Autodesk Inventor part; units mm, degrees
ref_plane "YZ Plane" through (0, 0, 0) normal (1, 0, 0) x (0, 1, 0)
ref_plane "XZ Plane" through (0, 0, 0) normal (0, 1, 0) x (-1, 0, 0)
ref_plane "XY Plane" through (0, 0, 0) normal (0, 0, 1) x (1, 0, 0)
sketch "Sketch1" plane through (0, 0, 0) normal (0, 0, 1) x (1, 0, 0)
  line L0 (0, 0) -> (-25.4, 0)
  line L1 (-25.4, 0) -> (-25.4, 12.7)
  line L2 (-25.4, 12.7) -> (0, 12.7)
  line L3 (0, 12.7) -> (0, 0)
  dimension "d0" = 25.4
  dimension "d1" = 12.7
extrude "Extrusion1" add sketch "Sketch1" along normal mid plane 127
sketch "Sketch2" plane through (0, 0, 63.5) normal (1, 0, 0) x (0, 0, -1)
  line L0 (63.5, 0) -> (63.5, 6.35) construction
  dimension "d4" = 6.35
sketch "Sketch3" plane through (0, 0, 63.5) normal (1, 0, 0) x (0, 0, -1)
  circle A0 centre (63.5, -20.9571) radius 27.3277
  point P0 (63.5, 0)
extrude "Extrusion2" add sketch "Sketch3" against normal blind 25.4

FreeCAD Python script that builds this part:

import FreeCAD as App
import Part
import Sketcher

V = App.Vector
Q = App.Units.Quantity

doc = App.newDocument("Part")
body = doc.addObject("PartDesign::Body", "Body")

# Sketch on XY plane
sketch1 = body.newObject("Sketcher::SketchObject", "Sketch")
sketch1.AttachmentSupport = (doc.getObject("XY_Plane"), [""])
sketch1.MapMode = "FlatFace"
sketch1.addGeometry(Part.LineSegment(V(-25, 0, 0), V(0, 0, 0)), False)
sketch1.addGeometry(Part.LineSegment(V(0, 0, 0), V(0, 13, 0)), False)
sketch1.addGeometry(Part.LineSegment(V(0, 13, 0), V(-25, 13, 0)), False)
sketch1.addGeometry(Part.LineSegment(V(-25, 13, 0), V(-25, 0, 0)), False)
sketch1.addConstraint(Sketcher.Constraint("Coincident", 0, 2, 1, 1))
sketch1.addConstraint(Sketcher.Constraint("Coincident", 1, 2, 2, 1))
sketch1.addConstraint(Sketcher.Constraint("Coincident", 2, 2, 3, 1))
sketch1.addConstraint(Sketcher.Constraint("Coincident", 3, 2, 0, 1))
sketch1.addConstraint(Sketcher.Constraint("Horizontal", 0))
sketch1.addConstraint(Sketcher.Constraint("Vertical", 1))
sketch1.addConstraint(Sketcher.Constraint("Horizontal", 2))
sketch1.addConstraint(Sketcher.Constraint("Vertical", 3))
sketch1.addConstraint(Sketcher.Constraint("Coincident", 0, 2, -1, 1))
sketch1.addConstraint(Sketcher.Constraint("DistanceX", 0, 1, 0, 2, Q("1 in")))
sketch1.addConstraint(Sketcher.Constraint("DistanceY", 1, 1, 1, 2, Q("0.5 in")))
pad1 = body.newObject("PartDesign::Pad", "Pad")
pad1.Profile = sketch1
pad1.Length = Q("5 in")
pad1.Midplane = True

# Sketch on YZ plane
sketch2 = body.newObject("Sketcher::SketchObject", "Sketch001")
sketch2.AttachmentSupport = (doc.getObject("YZ_Plane"), [""])
sketch2.MapMode = "FlatFace"
sketch2.addGeometry(Part.Circle(V(-21, 0, 0), V(0, 0, 1), 27), False)
sketch2.addConstraint(Sketcher.Constraint("PointOnObject", 0, 3, -1))
sketch2.addConstraint(Sketcher.Constraint("Diameter", 0, 54.6554))
sketch2.addConstraint(Sketcher.Constraint("DistanceX", 0, 3, -1, 1, 20.957))
pad2 = body.newObject("PartDesign::Pad", "Pad001")
pad2.Profile = sketch2
pad2.Length = Q("1 in")
pad2.Reversed = True

doc.recompute()
